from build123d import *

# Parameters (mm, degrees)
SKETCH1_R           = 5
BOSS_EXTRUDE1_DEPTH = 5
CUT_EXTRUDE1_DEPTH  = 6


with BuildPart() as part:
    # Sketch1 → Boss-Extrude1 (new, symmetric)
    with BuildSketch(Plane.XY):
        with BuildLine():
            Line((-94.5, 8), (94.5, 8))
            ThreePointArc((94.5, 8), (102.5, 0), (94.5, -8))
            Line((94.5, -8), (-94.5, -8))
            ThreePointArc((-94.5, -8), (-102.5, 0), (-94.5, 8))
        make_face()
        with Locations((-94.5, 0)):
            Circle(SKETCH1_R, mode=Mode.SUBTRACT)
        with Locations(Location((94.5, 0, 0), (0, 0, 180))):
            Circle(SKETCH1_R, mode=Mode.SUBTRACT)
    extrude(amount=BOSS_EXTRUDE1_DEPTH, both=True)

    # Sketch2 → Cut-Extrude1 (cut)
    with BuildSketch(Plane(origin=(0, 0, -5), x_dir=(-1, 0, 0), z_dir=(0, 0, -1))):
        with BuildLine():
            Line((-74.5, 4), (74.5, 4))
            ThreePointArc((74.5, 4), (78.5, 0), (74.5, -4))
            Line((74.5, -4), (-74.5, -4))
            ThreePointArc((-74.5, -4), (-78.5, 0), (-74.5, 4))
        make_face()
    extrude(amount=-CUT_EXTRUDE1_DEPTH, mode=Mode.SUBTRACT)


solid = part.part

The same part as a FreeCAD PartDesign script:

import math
import FreeCAD as App
import Part
import Sketcher

V = App.Vector
Q = App.Units.Quantity

doc = App.newDocument("Part")
body = doc.addObject("PartDesign::Body", "Body")

# Sketch on XY plane
sketch1 = body.newObject("Sketcher::SketchObject", "Sketch")
sketch1.AttachmentSupport = (doc.getObject("XY_Plane"), [""])
sketch1.MapMode = "FlatFace"
sketch1.addGeometry(Part.LineSegment(V(94, 8, 0), V(-94, 8, 0)), False)
sketch1.addGeometry(Part.ArcOfCircle(Part.Circle(V(-94, 0, 0), V(0, 0, 1), 8), math.radians(90), math.radians(270)), False)
sketch1.addGeometry(Part.LineSegment(V(-94, -8, 0), V(94, -8, 0)), False)
sketch1.addGeometry(Part.ArcOfCircle(Part.Circle(V(94, 0, 0), V(0, 0, 1), 8), math.radians(-90), math.radians(90)), False)
sketch1.addGeometry(Part.Circle(V(94, 0, 0), V(0, 0, 1), 5), False)
sketch1.addGeometry(Part.Circle(V(-94, 0, 0), V(0, 0, 1), 5), False)
sketch1.addConstraint(Sketcher.Constraint("Tangent", 0, 2, 1, 1))
sketch1.addConstraint(Sketcher.Constraint("Tangent", 1, 2, 2, 1))
sketch1.addConstraint(Sketcher.Constraint("Tangent", 2, 2, 3, 1))
sketch1.addConstraint(Sketcher.Constraint("Tangent", 3, 2, 0, 1))
sketch1.addConstraint(Sketcher.Constraint("Horizontal", 0))
sketch1.addConstraint(Sketcher.Constraint("Horizontal", 2))
sketch1.addConstraint(Sketcher.Constraint("Coincident", 4, 3, 3, 3))
sketch1.addConstraint(Sketcher.Constraint("Coincident", 5, 3, 1, 3))
sketch1.addConstraint(Sketcher.Constraint("Equal", 4, 5))
sketch1.addConstraint(Sketcher.Constraint("Symmetric", 1, 3, 3, 3, -1, 1))
sketch1.addConstraint(Sketcher.Constraint("Diameter", 4, Q("10 mm")))
sketch1.addConstraint(Sketcher.Constraint("Radius", 1, Q("8 mm")))
sketch1.addConstraint(Sketcher.Constraint("DistanceX", 0, 2, 0, 1, Q("189 mm")))
pad1 = body.newObject("PartDesign::Pad", "Pad")
pad1.Profile = sketch1
pad1.Length = 10
pad1.Midplane = True

# Sketch on XY plane
sketch2 = body.newObject("Sketcher::SketchObject", "Sketch001")
sketch2.AttachmentSupport = (doc.getObject("XY_Plane"), [""])
sketch2.MapMode = "FlatFace"
sketch2.AttachmentOffset = App.Placement(V(0, 0, -5), App.Rotation())
sketch2.addGeometry(Part.LineSegment(V(-74.5, 4, 0), V(74.5, 4, 0)), False)
sketch2.addGeometry(Part.ArcOfCircle(Part.Circle(V(74.5, 0, 0), V(0, 0, 1), 4), math.radians(-90), math.radians(90)), False)
sketch2.addGeometry(Part.LineSegment(V(74.5, -4, 0), V(-74.5, -4, 0)), False)
sketch2.addGeometry(Part.ArcOfCircle(Part.Circle(V(-74.5, 0, 0), V(0, 0, 1), 4), math.radians(90), math.radians(270)), False)
sketch2.addConstraint(Sketcher.Constraint("Tangent", 0, 2, 1, 2))
sketch2.addConstraint(Sketcher.Constraint("Tangent", 1, 1, 2, 1))
sketch2.addConstraint(Sketcher.Constraint("Tangent", 2, 2, 3, 2))
sketch2.addConstraint(Sketcher.Constraint("Tangent", 3, 1, 0, 1))
sketch2.addConstraint(Sketcher.Constraint("Horizontal", 0))
sketch2.addConstraint(Sketcher.Constraint("Horizontal", 2))
sketch2.addConstraint(Sketcher.Constraint("Symmetric", 1, 3, 3, 3, -1, 1))
sketch2.addConstraint(Sketcher.Constraint("Radius", 1, Q("4 mm")))
sketch2.addConstraint(Sketcher.Constraint("DistanceX", 0, 1, 0, 2, Q("149 mm")))
pocket1 = body.newObject("PartDesign::Pocket", "Pocket")
pocket1.Profile = sketch2
pocket1.Length = 6
pocket1.Reversed = True

doc.recompute()
